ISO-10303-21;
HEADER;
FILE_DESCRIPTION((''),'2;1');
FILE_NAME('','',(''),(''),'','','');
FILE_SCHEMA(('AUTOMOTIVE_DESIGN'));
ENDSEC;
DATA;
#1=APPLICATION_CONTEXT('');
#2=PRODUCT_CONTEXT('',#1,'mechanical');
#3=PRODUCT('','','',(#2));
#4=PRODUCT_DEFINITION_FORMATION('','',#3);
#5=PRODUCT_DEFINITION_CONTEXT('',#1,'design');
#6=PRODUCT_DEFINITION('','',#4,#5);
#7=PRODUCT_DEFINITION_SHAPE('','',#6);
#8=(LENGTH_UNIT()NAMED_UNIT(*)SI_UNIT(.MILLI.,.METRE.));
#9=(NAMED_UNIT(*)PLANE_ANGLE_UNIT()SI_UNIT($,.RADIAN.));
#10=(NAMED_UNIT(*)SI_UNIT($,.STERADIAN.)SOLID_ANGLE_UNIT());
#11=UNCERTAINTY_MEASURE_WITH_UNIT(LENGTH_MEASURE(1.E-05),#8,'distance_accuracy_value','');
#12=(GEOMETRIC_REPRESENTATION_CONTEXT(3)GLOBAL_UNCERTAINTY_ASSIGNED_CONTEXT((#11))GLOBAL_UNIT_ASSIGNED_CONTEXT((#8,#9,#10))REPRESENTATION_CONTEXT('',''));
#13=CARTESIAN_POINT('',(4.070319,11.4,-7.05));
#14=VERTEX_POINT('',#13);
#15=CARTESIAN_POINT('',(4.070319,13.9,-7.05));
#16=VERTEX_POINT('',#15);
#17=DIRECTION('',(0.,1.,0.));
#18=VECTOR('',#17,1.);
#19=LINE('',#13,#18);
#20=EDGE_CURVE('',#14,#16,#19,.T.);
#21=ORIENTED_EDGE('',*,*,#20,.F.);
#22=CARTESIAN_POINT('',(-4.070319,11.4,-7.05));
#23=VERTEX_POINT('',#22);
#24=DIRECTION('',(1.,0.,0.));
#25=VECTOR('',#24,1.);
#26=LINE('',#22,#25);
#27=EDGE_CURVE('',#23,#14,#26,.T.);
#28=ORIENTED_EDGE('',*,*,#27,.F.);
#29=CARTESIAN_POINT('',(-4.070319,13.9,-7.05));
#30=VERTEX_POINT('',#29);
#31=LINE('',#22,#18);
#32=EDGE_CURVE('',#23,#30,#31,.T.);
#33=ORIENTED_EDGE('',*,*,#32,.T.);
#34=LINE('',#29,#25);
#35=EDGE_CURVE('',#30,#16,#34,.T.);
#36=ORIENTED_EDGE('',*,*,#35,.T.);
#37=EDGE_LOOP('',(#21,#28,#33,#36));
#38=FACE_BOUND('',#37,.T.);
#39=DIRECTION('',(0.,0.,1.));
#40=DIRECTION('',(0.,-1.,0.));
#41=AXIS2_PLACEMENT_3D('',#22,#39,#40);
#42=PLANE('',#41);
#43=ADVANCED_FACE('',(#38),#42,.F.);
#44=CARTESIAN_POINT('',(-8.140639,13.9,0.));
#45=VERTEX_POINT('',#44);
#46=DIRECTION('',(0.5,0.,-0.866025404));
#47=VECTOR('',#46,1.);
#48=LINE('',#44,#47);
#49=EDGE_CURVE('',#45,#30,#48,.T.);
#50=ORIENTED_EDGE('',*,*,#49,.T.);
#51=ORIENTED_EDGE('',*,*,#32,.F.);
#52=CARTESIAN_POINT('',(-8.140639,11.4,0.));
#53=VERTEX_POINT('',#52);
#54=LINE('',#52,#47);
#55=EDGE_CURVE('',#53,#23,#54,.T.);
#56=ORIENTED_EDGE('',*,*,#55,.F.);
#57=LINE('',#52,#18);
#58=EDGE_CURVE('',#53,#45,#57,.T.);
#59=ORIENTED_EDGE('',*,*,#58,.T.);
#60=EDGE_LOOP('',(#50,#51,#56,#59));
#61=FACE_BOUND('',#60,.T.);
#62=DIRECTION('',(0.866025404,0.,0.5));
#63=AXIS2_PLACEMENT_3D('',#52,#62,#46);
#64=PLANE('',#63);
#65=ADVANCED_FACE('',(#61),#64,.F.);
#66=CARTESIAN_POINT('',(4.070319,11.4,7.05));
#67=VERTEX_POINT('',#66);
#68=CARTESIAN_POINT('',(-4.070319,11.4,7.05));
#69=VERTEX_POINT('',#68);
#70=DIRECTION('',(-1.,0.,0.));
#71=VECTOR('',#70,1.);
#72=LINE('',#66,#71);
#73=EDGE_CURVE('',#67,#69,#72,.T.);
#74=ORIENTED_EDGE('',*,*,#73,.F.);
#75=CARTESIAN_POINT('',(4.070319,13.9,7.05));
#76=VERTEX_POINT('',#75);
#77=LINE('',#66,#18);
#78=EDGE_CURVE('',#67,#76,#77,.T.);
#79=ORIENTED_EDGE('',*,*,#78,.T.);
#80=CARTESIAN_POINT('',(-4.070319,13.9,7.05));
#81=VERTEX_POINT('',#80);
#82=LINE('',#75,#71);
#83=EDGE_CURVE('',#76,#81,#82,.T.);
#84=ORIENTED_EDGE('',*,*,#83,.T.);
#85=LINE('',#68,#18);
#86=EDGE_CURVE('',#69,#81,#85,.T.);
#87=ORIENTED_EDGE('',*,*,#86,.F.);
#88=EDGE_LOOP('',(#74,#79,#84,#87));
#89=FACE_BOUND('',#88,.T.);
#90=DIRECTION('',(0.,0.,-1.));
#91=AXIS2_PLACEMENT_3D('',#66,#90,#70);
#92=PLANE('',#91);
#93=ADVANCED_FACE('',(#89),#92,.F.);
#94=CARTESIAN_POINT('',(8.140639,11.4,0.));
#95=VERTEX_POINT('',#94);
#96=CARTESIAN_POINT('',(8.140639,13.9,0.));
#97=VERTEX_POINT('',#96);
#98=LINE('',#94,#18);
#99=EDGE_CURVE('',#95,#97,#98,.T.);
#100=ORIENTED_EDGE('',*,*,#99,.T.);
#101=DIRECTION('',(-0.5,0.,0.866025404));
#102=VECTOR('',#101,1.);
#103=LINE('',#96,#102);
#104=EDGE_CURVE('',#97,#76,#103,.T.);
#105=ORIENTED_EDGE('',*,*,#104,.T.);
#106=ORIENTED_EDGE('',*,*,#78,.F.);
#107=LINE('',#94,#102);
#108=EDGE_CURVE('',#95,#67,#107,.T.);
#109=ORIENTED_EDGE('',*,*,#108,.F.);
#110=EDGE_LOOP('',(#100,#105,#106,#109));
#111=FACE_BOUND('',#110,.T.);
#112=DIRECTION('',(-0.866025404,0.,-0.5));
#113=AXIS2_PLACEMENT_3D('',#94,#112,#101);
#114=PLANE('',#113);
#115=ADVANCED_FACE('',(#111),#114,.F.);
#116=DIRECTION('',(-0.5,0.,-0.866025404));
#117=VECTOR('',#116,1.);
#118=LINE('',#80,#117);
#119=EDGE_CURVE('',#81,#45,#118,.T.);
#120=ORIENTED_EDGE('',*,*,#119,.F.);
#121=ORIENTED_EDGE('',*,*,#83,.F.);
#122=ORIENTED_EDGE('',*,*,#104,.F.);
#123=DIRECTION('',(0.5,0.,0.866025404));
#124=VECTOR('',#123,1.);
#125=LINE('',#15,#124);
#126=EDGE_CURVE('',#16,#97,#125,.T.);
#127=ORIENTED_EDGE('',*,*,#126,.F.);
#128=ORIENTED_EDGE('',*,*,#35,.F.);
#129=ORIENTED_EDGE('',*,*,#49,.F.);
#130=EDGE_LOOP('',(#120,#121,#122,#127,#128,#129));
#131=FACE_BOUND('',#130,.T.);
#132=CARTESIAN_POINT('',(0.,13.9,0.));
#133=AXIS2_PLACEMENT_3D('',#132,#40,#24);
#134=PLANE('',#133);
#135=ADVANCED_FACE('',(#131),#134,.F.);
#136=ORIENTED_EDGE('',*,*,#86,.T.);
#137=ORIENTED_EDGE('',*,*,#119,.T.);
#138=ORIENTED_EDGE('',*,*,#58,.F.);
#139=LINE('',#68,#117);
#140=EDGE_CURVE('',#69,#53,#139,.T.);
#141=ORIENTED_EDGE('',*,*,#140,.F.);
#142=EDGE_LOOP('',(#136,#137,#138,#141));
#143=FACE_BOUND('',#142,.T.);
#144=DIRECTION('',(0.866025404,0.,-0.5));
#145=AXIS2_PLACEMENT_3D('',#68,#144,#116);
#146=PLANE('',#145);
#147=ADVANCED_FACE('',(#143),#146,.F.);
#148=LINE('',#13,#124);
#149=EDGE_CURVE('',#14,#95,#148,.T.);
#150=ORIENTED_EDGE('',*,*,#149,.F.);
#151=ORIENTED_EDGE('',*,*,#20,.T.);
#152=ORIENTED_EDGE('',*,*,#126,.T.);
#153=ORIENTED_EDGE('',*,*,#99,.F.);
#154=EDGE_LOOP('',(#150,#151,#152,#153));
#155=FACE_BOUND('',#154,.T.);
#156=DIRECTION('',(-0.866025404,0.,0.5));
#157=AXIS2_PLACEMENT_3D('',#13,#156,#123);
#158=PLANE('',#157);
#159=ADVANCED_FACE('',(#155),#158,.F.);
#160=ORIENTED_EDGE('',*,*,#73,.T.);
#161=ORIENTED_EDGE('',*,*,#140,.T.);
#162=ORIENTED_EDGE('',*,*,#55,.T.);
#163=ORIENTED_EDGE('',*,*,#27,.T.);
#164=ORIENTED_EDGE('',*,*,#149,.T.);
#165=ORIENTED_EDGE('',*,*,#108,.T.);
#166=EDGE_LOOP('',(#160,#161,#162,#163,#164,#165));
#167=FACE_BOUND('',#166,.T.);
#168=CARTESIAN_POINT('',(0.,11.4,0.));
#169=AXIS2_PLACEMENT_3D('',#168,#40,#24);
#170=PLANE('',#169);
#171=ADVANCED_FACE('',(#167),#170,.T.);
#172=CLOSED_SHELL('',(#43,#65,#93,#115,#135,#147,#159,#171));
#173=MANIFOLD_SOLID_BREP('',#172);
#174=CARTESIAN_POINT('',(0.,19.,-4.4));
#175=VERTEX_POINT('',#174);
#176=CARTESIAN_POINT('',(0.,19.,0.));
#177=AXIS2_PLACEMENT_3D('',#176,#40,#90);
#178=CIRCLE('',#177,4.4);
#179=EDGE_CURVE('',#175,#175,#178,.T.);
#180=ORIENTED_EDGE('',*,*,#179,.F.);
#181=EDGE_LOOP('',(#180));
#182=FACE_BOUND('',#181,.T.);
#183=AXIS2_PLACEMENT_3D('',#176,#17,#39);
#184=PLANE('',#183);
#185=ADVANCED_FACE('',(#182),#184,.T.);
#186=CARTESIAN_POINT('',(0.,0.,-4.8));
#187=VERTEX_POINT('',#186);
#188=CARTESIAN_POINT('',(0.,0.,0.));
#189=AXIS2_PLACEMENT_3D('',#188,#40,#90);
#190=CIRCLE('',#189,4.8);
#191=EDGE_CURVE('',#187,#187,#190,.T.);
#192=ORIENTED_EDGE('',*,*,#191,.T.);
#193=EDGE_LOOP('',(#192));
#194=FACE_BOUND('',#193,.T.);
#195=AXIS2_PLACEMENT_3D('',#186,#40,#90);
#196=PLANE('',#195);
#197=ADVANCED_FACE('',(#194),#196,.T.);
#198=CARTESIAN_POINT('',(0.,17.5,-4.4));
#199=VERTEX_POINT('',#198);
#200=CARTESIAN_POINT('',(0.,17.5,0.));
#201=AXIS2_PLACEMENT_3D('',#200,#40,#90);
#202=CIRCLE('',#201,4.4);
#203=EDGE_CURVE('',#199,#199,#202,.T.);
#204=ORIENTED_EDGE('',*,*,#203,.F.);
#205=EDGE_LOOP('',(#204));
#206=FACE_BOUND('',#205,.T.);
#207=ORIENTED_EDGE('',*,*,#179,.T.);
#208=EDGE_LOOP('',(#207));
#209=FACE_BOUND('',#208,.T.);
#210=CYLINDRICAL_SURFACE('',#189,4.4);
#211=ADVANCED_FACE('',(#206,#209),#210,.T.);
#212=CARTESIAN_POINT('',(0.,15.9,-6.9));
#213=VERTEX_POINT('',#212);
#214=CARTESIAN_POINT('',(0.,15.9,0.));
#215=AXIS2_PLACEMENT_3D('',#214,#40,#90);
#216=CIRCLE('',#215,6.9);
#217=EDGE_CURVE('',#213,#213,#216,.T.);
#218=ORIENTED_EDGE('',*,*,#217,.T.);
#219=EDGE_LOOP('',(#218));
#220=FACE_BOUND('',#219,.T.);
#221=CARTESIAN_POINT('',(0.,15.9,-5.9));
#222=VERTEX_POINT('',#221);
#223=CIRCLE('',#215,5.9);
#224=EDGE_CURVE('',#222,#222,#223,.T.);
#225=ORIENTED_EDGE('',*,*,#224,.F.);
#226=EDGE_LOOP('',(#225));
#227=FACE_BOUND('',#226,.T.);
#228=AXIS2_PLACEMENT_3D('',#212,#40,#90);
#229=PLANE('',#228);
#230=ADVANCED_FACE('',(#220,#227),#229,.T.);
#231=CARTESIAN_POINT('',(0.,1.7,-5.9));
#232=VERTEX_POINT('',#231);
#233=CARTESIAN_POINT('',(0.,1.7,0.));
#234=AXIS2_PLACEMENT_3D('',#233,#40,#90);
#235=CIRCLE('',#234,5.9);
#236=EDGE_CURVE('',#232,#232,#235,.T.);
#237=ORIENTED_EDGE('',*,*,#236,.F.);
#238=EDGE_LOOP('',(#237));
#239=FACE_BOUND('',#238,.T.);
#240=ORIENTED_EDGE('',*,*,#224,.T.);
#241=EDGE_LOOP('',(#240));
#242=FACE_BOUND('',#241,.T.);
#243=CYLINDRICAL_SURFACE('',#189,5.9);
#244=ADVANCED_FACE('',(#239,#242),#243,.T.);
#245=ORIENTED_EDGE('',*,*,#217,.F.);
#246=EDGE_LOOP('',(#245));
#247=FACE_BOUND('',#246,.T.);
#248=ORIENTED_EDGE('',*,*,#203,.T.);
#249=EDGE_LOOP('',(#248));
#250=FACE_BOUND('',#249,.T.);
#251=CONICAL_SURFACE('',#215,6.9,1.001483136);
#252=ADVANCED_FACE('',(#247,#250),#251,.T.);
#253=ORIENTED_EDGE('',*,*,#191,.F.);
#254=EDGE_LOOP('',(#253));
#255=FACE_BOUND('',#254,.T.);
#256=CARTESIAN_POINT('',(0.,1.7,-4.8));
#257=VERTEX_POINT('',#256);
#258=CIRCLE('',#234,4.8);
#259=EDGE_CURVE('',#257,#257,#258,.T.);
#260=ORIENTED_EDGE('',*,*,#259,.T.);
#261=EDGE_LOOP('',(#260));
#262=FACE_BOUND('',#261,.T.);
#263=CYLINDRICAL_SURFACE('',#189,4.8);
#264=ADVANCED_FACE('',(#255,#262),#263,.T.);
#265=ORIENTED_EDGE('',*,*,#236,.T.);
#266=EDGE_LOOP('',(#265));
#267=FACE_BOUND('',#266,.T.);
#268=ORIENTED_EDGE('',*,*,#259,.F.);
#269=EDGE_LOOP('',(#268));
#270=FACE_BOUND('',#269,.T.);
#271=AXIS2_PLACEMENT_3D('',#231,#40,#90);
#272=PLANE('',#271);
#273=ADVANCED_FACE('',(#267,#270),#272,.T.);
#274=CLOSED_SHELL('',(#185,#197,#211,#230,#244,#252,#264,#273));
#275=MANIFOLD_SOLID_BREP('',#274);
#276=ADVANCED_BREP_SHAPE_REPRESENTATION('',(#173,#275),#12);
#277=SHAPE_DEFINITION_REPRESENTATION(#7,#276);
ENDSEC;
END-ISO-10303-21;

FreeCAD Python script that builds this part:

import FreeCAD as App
import Part
import Sketcher
Q = App.Units.Quantity


def add_polygon(sketch, points):
    """Adds a closed chain of lines whose ends are joined by coincident constraints."""
    first, n = sketch.GeometryCount, len(points)
    for a, b in zip(points, points[1:] + points[:1]):
        sketch.addGeometry(Part.LineSegment(App.Vector(*a, 0), App.Vector(*b, 0)), False)
    for i in range(n):
        sketch.addConstraint(Sketcher.Constraint("Coincident", first + i, 2, first + (i + 1) % n, 1))

doc = App.newDocument("Part")
body = doc.addObject("PartDesign::Body", "Body")

# Sketch on YZ plane
sketch1 = body.newObject("Sketcher::SketchObject", "Sketch")
sketch1.AttachmentSupport = (doc.getObject("YZ_Plane"), [""])
sketch1.MapMode = "FlatFace"
add_polygon(sketch1, [(19, 0), (0, 0), (0, -4.8), (1.7, -4.8), (1.7, -5.9), (15.9, -5.9), (15.9, -6.9), (17.5, -4.4), (19, -4.4)])  # lines 0-8
sketch1.addConstraint([
    Sketcher.Constraint("Horizontal", 0),
    Sketcher.Constraint("Vertical", 1),
    Sketcher.Constraint("Horizontal", 2),
    Sketcher.Constraint("Vertical", 3),
    Sketcher.Constraint("Horizontal", 4),
    Sketcher.Constraint("Vertical", 5),
    Sketcher.Constraint("Horizontal", 7),
    Sketcher.Constraint("Vertical", 8),
    Sketcher.Constraint("Coincident", 0, 2, -1, 1),
    Sketcher.Constraint("DistanceX", 0, 2, 0, 1, Q("19 mm")),
    Sketcher.Constraint("DistanceY", 5, 2, 5, 1, Q("1 mm")),
    Sketcher.Constraint("DistanceX", 2, 1, 2, 2, Q("1.7 mm")),
    Sketcher.Constraint("DistanceX", 4, 1, 4, 2, Q("14.2 mm")),
    Sketcher.Constraint("DistanceX", 7, 1, 7, 2, Q("1.5 mm")),
    Sketcher.Constraint("DistanceY", 1, 2, 1, 1, Q("4.8 mm")),
    Sketcher.Constraint("DistanceY", 3, 2, 3, 1, Q("1.1 mm")),
    Sketcher.Constraint("DistanceY", 8, 1, 8, 2, Q("4.4 mm")),
])
revolution = body.newObject("PartDesign::Revolution", "Revolution")
revolution.Profile = sketch1
revolution.ReferenceAxis = (sketch1, ["H_Axis"])
revolution.Angle = 360
body2 = doc.addObject("PartDesign::Body", "Body001")

# Sketch on XZ plane
sketch2 = body2.newObject("Sketcher::SketchObject", "Sketch001")
sketch2.AttachmentSupport = (doc.getObject("XZ_Plane001"), [""])
sketch2.MapMode = "FlatFace"
sketch2.AttachmentOffset = App.Placement(App.Vector(0, 0, -13.9), App.Rotation())
add_polygon(sketch2, [(-4.070319, -7.05), (4.070319, -7.05), (8.140639, 0), (4.070319, 7.05), (-4.070319, 7.05), (-8.140639, 0)])  # lines 0-5
sketch2.addConstraint([
    Sketcher.Constraint("Horizontal", 0),
    Sketcher.Constraint("Horizontal", 3),
    Sketcher.Constraint("Symmetric", 0, 2, 3, 2, -1, 1),
    Sketcher.Constraint("Symmetric", 1, 2, 4, 2, -1, 1),
    Sketcher.Constraint("PointOnObject", 1, 2, -1),
    Sketcher.Constraint("Parallel", 2, 5),
    Sketcher.Constraint("Vertical", 0, 2, 2, 2),
    Sketcher.Constraint("Angle", 1, Q("60 deg")),
    Sketcher.Constraint("DistanceY", 0, 2, 2, 2, Q("14.1 mm")),
    Sketcher.Constraint("DistanceX", 0, 1, 0, 2, Q("8.140639 mm")),
])
pad1 = body2.newObject("PartDesign::Pad", "Pad")
pad1.Profile = sketch2
pad1.Length = 2.5

doc.recompute()
